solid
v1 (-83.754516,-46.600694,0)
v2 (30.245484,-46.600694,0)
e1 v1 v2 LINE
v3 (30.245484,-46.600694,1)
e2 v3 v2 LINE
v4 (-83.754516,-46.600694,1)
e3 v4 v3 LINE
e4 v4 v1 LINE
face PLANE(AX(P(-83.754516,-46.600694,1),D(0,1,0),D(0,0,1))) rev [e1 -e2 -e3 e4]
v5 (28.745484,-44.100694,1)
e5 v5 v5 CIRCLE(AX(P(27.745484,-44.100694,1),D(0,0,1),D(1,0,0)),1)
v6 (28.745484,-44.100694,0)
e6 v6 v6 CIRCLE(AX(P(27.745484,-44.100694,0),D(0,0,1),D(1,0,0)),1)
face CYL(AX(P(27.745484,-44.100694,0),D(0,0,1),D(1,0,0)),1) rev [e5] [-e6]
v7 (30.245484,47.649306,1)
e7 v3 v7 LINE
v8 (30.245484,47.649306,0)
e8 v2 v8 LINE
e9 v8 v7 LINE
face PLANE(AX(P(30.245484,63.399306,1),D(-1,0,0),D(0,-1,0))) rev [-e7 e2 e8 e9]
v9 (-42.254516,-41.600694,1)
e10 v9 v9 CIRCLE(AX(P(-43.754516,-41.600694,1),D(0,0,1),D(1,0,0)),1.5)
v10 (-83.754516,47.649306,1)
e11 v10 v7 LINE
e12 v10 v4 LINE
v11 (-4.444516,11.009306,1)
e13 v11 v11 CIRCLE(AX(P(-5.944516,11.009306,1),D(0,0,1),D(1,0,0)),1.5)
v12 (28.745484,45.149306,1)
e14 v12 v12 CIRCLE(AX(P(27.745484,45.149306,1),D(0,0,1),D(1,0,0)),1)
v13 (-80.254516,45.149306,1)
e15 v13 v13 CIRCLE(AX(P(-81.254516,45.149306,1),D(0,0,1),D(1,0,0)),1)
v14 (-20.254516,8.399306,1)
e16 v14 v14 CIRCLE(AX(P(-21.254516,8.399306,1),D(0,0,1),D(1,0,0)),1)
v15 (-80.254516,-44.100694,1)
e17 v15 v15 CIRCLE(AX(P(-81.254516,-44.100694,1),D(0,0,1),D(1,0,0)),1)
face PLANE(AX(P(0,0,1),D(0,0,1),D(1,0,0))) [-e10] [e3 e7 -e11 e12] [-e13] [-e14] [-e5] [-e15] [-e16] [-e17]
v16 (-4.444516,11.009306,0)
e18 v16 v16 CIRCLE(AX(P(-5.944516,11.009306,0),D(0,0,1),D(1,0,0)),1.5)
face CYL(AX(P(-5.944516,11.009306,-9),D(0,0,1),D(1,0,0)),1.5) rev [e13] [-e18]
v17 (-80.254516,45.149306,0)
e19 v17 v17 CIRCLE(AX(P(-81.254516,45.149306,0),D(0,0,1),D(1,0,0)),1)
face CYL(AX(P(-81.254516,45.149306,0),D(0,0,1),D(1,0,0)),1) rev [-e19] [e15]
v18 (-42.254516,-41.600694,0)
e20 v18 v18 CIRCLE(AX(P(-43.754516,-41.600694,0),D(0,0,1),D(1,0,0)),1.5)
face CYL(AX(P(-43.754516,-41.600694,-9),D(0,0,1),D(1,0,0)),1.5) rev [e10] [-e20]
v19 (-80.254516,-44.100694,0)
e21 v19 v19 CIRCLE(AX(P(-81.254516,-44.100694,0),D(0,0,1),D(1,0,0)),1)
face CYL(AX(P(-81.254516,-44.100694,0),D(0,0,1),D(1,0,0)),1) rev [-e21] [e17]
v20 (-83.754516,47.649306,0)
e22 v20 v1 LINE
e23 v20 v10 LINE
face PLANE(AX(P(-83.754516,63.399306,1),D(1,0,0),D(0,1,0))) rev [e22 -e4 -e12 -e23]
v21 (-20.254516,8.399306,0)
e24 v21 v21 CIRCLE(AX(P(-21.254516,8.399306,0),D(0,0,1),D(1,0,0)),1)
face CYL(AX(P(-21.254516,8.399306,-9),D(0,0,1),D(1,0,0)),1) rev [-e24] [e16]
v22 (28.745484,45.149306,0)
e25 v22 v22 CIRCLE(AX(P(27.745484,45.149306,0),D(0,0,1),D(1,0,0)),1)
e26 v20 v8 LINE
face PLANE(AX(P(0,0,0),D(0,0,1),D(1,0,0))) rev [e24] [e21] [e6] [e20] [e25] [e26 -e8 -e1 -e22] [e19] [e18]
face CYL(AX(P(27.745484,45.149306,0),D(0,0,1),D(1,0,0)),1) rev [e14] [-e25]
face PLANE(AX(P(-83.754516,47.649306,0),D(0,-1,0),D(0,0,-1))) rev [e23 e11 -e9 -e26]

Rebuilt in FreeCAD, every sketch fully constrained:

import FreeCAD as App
import Part
import Sketcher

V = App.Vector


def add_polygon(sketch, points):
    """Adds a closed chain of lines whose ends are joined by coincident constraints."""
    first, n = sketch.GeometryCount, len(points)
    for a, b in zip(points, points[1:] + points[:1]):
        sketch.addGeometry(Part.LineSegment(App.Vector(*a, 0), App.Vector(*b, 0)), False)
    for i in range(n):
        sketch.addConstraint(Sketcher.Constraint("Coincident", first + i, 2, first + (i + 1) % n, 1))

doc = App.newDocument("Part")
body = doc.addObject("PartDesign::Body", "Body")

sketch1 = body.newObject("Sketcher::SketchObject", "Sketch")
sketch1.AttachmentSupport = (doc.getObject("XY_Plane"), [""])
sketch1.MapMode = "FlatFace"
add_polygon(sketch1, [(-84, 63), (-84, -47), (30, -47), (30, 63)])
sketch1.addConstraint([
    Sketcher.Constraint("Vertical", 0),
    Sketcher.Constraint("Horizontal", 1),
    Sketcher.Constraint("Vertical", 2),
    Sketcher.Constraint("Horizontal", 3),
    Sketcher.Constraint("DistanceX", 1, 1, 1, 2, 114.0),
    Sketcher.Constraint("DistanceY", 0, 2, 0, 1, 110.0),
    Sketcher.Constraint("DistanceX", 0, 2, -1, 1, 83.754516),
    Sketcher.Constraint("DistanceY", 0, 2, -1, 1, 46.600694),
])
pad1 = body.newObject("PartDesign::Pad", "Pad")
pad1.Profile = sketch1
pad1.Length = 1

sketch2 = body.newObject("Sketcher::SketchObject", "Sketch001")
sketch2.AttachmentSupport = (doc.getObject("XY_Plane"), [""])
sketch2.MapMode = "FlatFace"
sketch2.AttachmentOffset = App.Placement(V(0, 0, 1), App.Rotation())
sketch2.addGeometry([
    Part.Circle(V(-81.3, 60.9, 0), V(0, 0, 1), 1),
    Part.Circle(V(27.7, 60.9, 0), V(0, 0, 1), 1),
    Part.Circle(V(27.7, -44.1, 0), V(0, 0, 1), 1),
    Part.Circle(V(-81.3, -44.1, 0), V(0, 0, 1), 1),
], False)
sketch2.addConstraint([
    Sketcher.Constraint("Equal", 0, 1),
    Sketcher.Constraint("Equal", 1, 2),
    Sketcher.Constraint("Equal", 2, 3),
    Sketcher.Constraint("Horizontal", 0, 3, 1, 3),
    Sketcher.Constraint("Horizontal", 2, 3, 3, 3),
    Sketcher.Constraint("Vertical", 1, 3, 2, 3),
    Sketcher.Constraint("Vertical", 0, 3, 3, 3),
    Sketcher.Constraint("Diameter", 0, 2.0),
    Sketcher.Constraint("DistanceX", 0, 3, 1, 3, 109.0),
    Sketcher.Constraint("DistanceY", 2, 3, 1, 3, 105.0),
    Sketcher.Constraint("DistanceX", 0, 3, -1, 1, 81.254516),
    Sketcher.Constraint("DistanceY", -1, 1, 0, 3, 60.899306),
])
pocket1 = body.newObject("PartDesign::Pocket", "Pocket")
pocket1.Profile = sketch2
pocket1.Type = "ThroughAll"

sketch3 = body.newObject("Sketcher::SketchObject", "Sketch002")
sketch3.AttachmentSupport = (doc.getObject("XY_Plane"), [""])
sketch3.MapMode = "FlatFace"
sketch3.addGeometry(Part.Circle(V(-28.8, 11.9, 0), V(0, 0, 1), 1), False)
sketch3.addConstraint([
    Sketcher.Constraint("Diameter", 0, 2.0),
    Sketcher.Constraint("DistanceX", 0, 3, -1, 1, 28.754516),
    Sketcher.Constraint("DistanceY", -1, 1, 0, 3, 11.899306),
])
pocket2 = body.newObject("PartDesign::Pocket", "Pocket001")
pocket2.Profile = sketch3
pocket2.Length = 10
pocket2.Reversed = True

sketch4 = body.newObject("Sketcher::SketchObject", "Sketch003")
sketch4.AttachmentSupport = (doc.getObject("XY_Plane"), [""])
sketch4.MapMode = "FlatFace"
sketch4.AttachmentOffset = App.Placement(V(0, 0, 1), App.Rotation())
add_polygon(sketch4, [(-35, 17), (-35, -4), (-19, -4), (-19, 17)])
sketch4.addConstraint([
    Sketcher.Constraint("Vertical", 0),
    Sketcher.Constraint("Horizontal", 1),
    Sketcher.Constraint("Vertical", 2),
    Sketcher.Constraint("Horizontal", 3),
    Sketcher.Constraint("DistanceX", 1, 1, 1, 2, 15.734922),
    Sketcher.Constraint("DistanceY", 0, 2, 0, 1, 20.720244),
    Sketcher.Constraint("DistanceY", 0, 2, -1, 1, 3.830312),
    Sketcher.Constraint("DistanceX", 0, 2, -1, 1, 35.167247),
])
pad2 = body.newObject("PartDesign::Pad", "Pad001")
pad2.Profile = sketch4
pad2.Type = "UpToLast"
pad2.Reversed = True

sketch5 = body.newObject("Sketcher::SketchObject", "Sketch004")
sketch5.AttachmentSupport = (doc.getObject("XY_Plane"), [""])
sketch5.MapMode = "FlatFace"
sketch5.AttachmentOffset = App.Placement(V(0, 0, 1), App.Rotation())
sketch5.addGeometry(Part.Circle(V(-21.3, 8.4, 0), V(0, 0, 1), 1), False)
sketch5.addConstraint([
    Sketcher.Constraint("Diameter", 0, 2.0),
    Sketcher.Constraint("DistanceX", 0, 3, -1, 1, 21.254516),
    Sketcher.Constraint("DistanceY", -1, 1, 0, 3, 8.399306),
])
pocket3 = body.newObject("PartDesign::Pocket", "Pocket002")
pocket3.Profile = sketch5
pocket3.Length = 10

sketch6 = body.newObject("Sketcher::SketchObject", "Sketch005")
sketch6.AttachmentSupport = (doc.getObject("XY_Plane"), [""])
sketch6.MapMode = "FlatFace"
sketch6.AttachmentOffset = App.Placement(V(0, 0, 1), App.Rotation())
sketch6.addGeometry(Part.Circle(V(-43.8, -41.6, 0), V(0, 0, 1), 1.5), False)
sketch6.addConstraint([
    Sketcher.Constraint("Diameter", 0, 3.0),
    Sketcher.Constraint("DistanceX", 0, 3, -1, 1, 43.754516),
    Sketcher.Constraint("DistanceY", 0, 3, -1, 1, 41.600694),
])
pocket4 = body.newObject("PartDesign::Pocket", "Pocket003")
pocket4.Profile = sketch6
pocket4.Length = 10

sketch7 = body.newObject("Sketcher::SketchObject", "Sketch006")
sketch7.AttachmentSupport = (doc.getObject("XY_Plane"), [""])
sketch7.MapMode = "FlatFace"
sketch7.AttachmentOffset = App.Placement(V(0, 0, 1), App.Rotation())
sketch7.addGeometry(Part.Circle(V(-5.9, 11, 0), V(0, 0, 1), 1.5), False)
sketch7.addConstraint([
    Sketcher.Constraint("Diameter", 0, 3.0),
    Sketcher.Constraint("DistanceX", 0, 3, -1, 1, 5.944516),
    Sketcher.Constraint("DistanceY", -1, 1, 0, 3, 11.009306),
])
pocket5 = body.newObject("PartDesign::Pocket", "Pocket004")
pocket5.Profile = sketch7
pocket5.Length = 10

sketch8 = body.newObject("Sketcher::SketchObject", "Sketch007")
sketch8.AttachmentSupport = (doc.getObject("XY_Plane"), [""])
sketch8.MapMode = "FlatFace"
sketch8.AttachmentOffset = App.Placement(V(0, 0, 1), App.Rotation())
sketch8.addGeometry(Part.Circle(V(-81.3, 45.1, 0), V(0, 0, 1), 1), False)
sketch8.addConstraint([
    Sketcher.Constraint("Diameter", 0, 2.0),
    Sketcher.Constraint("DistanceX", 0, 3, -1, 1, 81.254516),
    Sketcher.Constraint("DistanceY", -1, 1, 0, 3, 45.149306),
])
pocket6 = body.newObject("PartDesign::Pocket", "Pocket005")
pocket6.Profile = sketch8
pocket6.Type = "ThroughAll"

sketch9 = body.newObject("Sketcher::SketchObject", "Sketch008")
sketch9.AttachmentSupport = (doc.getObject("XY_Plane"), [""])
sketch9.MapMode = "FlatFace"
sketch9.AttachmentOffset = App.Placement(V(0, 0, 1), App.Rotation())
sketch9.addGeometry(Part.Circle(V(27.7, 45.1, 0), V(0, 0, 1), 1), False)
sketch9.addConstraint([
    Sketcher.Constraint("Diameter", 0, 2.0),
    Sketcher.Constraint("DistanceX", -1, 1, 0, 3, 27.745484),
    Sketcher.Constraint("DistanceY", -1, 1, 0, 3, 45.149306),
])
pocket7 = body.newObject("PartDesign::Pocket", "Pocket006")
pocket7.Profile = sketch9
pocket7.Type = "ThroughAll"

sketch10 = body.newObject("Sketcher::SketchObject", "Sketch009")
sketch10.AttachmentSupport = (doc.getObject("XY_Plane"), [""])
sketch10.MapMode = "FlatFace"
sketch10.AttachmentOffset = App.Placement(V(0, 0, 1), App.Rotation())
add_polygon(sketch10, [(-84, 63), (-84, 48), (30, 48), (30, 63)])
sketch10.addConstraint([
    Sketcher.Constraint("Vertical", 0),
    Sketcher.Constraint("Horizontal", 1),
    Sketcher.Constraint("Vertical", 2),
    Sketcher.Constraint("Horizontal", 3),
    Sketcher.Constraint("DistanceX", 1, 1, 1, 2, 114.0),
    Sketcher.Constraint("DistanceY", 0, 2, 0, 1, 15.75),
    Sketcher.Constraint("DistanceX", 0, 2, -1, 1, 83.754516),
    Sketcher.Constraint("DistanceY", -1, 1, 0, 2, 47.649306),
])
pocket8 = body.newObject("PartDesign::Pocket", "Pocket007")
pocket8.Profile = sketch10
pocket8.Type = "ThroughAll"

doc.recompute()
